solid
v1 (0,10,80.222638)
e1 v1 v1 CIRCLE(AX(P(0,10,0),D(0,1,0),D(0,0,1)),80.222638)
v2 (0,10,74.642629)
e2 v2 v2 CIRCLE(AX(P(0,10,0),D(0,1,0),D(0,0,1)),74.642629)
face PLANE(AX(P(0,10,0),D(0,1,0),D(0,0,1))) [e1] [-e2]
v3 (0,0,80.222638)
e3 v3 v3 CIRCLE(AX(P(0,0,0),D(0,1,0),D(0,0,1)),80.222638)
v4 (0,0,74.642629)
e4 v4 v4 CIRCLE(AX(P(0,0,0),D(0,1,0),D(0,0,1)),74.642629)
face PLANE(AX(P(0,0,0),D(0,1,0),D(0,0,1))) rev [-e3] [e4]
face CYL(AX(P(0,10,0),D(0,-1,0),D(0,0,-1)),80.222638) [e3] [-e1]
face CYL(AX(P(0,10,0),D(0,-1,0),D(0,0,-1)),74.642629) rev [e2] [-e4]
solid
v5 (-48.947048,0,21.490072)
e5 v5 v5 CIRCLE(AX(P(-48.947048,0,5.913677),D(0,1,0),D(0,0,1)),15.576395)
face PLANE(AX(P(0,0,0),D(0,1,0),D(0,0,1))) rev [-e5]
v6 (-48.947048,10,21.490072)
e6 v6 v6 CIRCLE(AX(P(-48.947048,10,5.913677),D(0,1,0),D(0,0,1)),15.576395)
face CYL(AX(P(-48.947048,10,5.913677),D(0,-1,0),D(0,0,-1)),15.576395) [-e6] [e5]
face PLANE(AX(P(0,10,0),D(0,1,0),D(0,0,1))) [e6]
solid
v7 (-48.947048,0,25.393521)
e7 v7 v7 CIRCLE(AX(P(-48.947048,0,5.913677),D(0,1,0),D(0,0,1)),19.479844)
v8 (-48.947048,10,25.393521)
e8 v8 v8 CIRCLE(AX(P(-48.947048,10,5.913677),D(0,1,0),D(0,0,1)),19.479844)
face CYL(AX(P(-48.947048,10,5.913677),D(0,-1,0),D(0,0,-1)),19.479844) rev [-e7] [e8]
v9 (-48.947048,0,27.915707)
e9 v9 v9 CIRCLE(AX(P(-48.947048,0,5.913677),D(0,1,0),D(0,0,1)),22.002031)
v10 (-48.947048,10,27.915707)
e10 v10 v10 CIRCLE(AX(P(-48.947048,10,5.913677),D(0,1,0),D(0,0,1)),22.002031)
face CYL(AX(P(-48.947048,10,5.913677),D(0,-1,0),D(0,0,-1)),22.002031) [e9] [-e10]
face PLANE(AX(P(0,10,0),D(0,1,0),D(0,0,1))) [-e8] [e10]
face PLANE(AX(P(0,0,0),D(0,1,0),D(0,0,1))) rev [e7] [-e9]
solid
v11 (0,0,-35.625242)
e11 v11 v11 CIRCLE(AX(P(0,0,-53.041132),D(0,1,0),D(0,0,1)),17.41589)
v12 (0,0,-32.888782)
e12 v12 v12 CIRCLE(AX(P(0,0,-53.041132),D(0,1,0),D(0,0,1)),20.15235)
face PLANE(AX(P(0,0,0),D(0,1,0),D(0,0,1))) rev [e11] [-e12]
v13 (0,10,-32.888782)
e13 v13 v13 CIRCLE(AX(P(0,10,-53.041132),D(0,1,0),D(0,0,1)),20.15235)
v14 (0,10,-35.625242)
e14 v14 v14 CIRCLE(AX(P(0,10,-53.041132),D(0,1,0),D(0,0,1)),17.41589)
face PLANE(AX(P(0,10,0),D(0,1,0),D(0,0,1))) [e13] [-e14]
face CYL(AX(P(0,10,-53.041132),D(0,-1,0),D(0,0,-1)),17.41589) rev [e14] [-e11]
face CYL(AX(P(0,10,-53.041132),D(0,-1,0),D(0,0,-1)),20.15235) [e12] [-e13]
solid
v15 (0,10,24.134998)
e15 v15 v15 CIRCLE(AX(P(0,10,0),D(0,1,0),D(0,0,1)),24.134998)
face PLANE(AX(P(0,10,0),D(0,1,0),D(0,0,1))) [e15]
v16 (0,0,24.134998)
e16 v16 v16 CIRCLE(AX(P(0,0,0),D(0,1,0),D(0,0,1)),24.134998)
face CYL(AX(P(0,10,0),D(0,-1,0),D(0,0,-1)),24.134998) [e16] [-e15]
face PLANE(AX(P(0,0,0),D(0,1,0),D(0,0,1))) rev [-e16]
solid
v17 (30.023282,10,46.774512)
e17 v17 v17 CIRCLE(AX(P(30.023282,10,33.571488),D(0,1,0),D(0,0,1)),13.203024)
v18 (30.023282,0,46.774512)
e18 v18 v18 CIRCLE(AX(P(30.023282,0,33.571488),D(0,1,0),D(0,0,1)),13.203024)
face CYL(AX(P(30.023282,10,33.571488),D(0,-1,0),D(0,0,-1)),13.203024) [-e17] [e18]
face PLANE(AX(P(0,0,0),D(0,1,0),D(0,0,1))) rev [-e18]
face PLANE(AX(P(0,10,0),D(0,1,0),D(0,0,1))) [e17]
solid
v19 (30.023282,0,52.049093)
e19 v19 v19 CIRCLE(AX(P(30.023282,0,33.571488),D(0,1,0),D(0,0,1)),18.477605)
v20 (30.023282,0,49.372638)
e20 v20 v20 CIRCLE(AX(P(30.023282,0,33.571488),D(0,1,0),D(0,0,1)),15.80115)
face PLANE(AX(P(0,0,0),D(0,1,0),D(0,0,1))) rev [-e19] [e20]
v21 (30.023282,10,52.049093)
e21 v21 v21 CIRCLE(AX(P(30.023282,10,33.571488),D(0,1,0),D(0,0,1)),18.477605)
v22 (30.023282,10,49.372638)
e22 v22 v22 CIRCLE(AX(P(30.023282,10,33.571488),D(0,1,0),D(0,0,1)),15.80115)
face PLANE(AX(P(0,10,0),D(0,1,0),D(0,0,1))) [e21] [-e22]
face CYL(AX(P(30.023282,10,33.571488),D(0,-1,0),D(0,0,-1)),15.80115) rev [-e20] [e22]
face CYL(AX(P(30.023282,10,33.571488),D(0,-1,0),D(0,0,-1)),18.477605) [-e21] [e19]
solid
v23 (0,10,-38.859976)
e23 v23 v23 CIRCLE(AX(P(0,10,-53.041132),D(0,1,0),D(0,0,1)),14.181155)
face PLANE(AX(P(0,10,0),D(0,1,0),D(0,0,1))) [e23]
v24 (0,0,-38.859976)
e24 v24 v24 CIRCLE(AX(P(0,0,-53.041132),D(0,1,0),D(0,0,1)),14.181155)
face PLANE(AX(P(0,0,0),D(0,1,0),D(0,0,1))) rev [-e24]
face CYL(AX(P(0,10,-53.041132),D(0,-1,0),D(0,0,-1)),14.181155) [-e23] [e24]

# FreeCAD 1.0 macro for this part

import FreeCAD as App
import Part
import Sketcher
from FreeCAD import Vector

doc = App.newDocument("Part")
params = doc.addObject("Spreadsheet::Sheet", "Params")
for row, (alias, value) in enumerate([
    ("pad1_length", "10 mm"),
    ("pad2_length", "10 mm"),
    ("pad3_length", "10 mm"),
    ("pad4_length", "10 mm"),
    ("pad5_length", "10 mm"),
    ("pad6_length", "10 mm"),
    ("pad7_length", "10 mm"),
    ("pad8_length", "10 mm"),
], start=1):
    params.set(f"A{row}", alias)
    params.set(f"B{row}", "=" + value)
    params.setAlias(f"B{row}", alias)

body = doc.addObject("PartDesign::Body", "Body")

# Sketch on XZ plane
sketch1 = body.newObject("Sketcher::SketchObject", "Sketch")
sketch1.AttachmentSupport = (doc.getObject("XZ_Plane"), [""])
sketch1.MapMode = "FlatFace"
sketch1.addGeometry(Part.Circle(Vector(0, 0, 0), Vector(0, 0, 1), 80), False)
sketch1.addGeometry(Part.Circle(Vector(0, 0, 0), Vector(0, 0, 1), 75), False)
sketch1.addConstraint(Sketcher.Constraint("Coincident", 0, 3, -1, 1))
sketch1.addConstraint(Sketcher.Constraint("Coincident", 1, 3, -1, 1))
sketch1.addConstraint(Sketcher.Constraint("Diameter", 0, 160.445277))
sketch1.addConstraint(Sketcher.Constraint("Diameter", 1, 149.285258))
pad1 = body.newObject("PartDesign::Pad", "Pad")
pad1.Profile = sketch1
pad1.setExpression("Length", "Params.pad1_length")
pad1.Reversed = True
body2 = doc.addObject("PartDesign::Body", "Body001")

# Sketch on XZ plane
sketch2 = body2.newObject("Sketcher::SketchObject", "Sketch001")
sketch2.AttachmentSupport = (doc.getObject("XZ_Plane001"), [""])
sketch2.MapMode = "FlatFace"
sketch2.addGeometry(Part.Circle(Vector(0, 0, 0), Vector(0, 0, 1), 24), False)
sketch2.addConstraint(Sketcher.Constraint("Coincident", 0, 3, -1, 1))
sketch2.addConstraint(Sketcher.Constraint("Diameter", 0, 48.269995))
pad2 = body2.newObject("PartDesign::Pad", "Pad001")
pad2.Profile = sketch2
pad2.setExpression("Length", "Params.pad2_length")
pad2.Reversed = True
body3 = doc.addObject("PartDesign::Body", "Body002")

# Sketch on XZ plane
sketch3 = body3.newObject("Sketcher::SketchObject", "Sketch002")
sketch3.AttachmentSupport = (doc.getObject("XZ_Plane002"), [""])
sketch3.MapMode = "FlatFace"
sketch3.addGeometry(Part.Circle(Vector(-49, 6, 0), Vector(0, 0, 1), 16), False)
sketch3.addConstraint(Sketcher.Constraint("Diameter", 0, 31.15279))
sketch3.addConstraint(Sketcher.Constraint("DistanceX", 0, 3, -1, 1, 48.947048))
sketch3.addConstraint(Sketcher.Constraint("DistanceY", -1, 1, 0, 3, 5.913677))
pad3 = body3.newObject("PartDesign::Pad", "Pad002")
pad3.Profile = sketch3
pad3.setExpression("Length", "Params.pad3_length")
pad3.Reversed = True
body4 = doc.addObject("PartDesign::Body", "Body003")

# Sketch on XZ plane
sketch4 = body4.newObject("Sketcher::SketchObject", "Sketch003")
sketch4.AttachmentSupport = (doc.getObject("XZ_Plane003"), [""])
sketch4.MapMode = "FlatFace"
sketch4.addGeometry(Part.Circle(Vector(-49, 6, 0), Vector(0, 0, 1), 22), False)
sketch4.addGeometry(Part.Circle(Vector(-49, 6, 0), Vector(0, 0, 1), 19), False)
sketch4.addConstraint(Sketcher.Constraint("Coincident", 1, 3, 0, 3))
sketch4.addConstraint(Sketcher.Constraint("Diameter", 0, 44.004061))
sketch4.addConstraint(Sketcher.Constraint("Diameter", 1, 38.959689))
sketch4.addConstraint(Sketcher.Constraint("DistanceX", 0, 3, -1, 1, 48.947048))
sketch4.addConstraint(Sketcher.Constraint("DistanceY", -1, 1, 0, 3, 5.913677))
pad4 = body4.newObject("PartDesign::Pad", "Pad003")
pad4.Profile = sketch4
pad4.setExpression("Length", "Params.pad4_length")
pad4.Reversed = True
body5 = doc.addObject("PartDesign::Body", "Body004")

# Sketch on XZ plane
sketch5 = body5.newObject("Sketcher::SketchObject", "Sketch004")
sketch5.AttachmentSupport = (doc.getObject("XZ_Plane004"), [""])
sketch5.MapMode = "FlatFace"
sketch5.addGeometry(Part.Circle(Vector(0, -53, 0), Vector(0, 0, 1), 14), False)
sketch5.addConstraint(Sketcher.Constraint("PointOnObject", 0, 3, -2))
sketch5.addConstraint(Sketcher.Constraint("Diameter", 0, 28.362311))
sketch5.addConstraint(Sketcher.Constraint("DistanceY", 0, 3, -1, 1, 53.041132))
pad5 = body5.newObject("PartDesign::Pad", "Pad004")
pad5.Profile = sketch5
pad5.setExpression("Length", "Params.pad5_length")
pad5.Reversed = True
body6 = doc.addObject("PartDesign::Body", "Body005")

# Sketch on XZ plane
sketch6 = body6.newObject("Sketcher::SketchObject", "Sketch005")
sketch6.AttachmentSupport = (doc.getObject("XZ_Plane005"), [""])
sketch6.MapMode = "FlatFace"
sketch6.addGeometry(Part.Circle(Vector(0, -53, 0), Vector(0, 0, 1), 20), False)
sketch6.addGeometry(Part.Circle(Vector(0, -53, 0), Vector(0, 0, 1), 17), False)
sketch6.addConstraint(Sketcher.Constraint("Coincident", 1, 3, 0, 3))
sketch6.addConstraint(Sketcher.Constraint("PointOnObject", 0, 3, -2))
sketch6.addConstraint(Sketcher.Constraint("Diameter", 0, 40.304701))
sketch6.addConstraint(Sketcher.Constraint("Diameter", 1, 34.831779))
sketch6.addConstraint(Sketcher.Constraint("DistanceY", 0, 3, -1, 1, 53.041132))
pad6 = body6.newObject("PartDesign::Pad", "Pad005")
pad6.Profile = sketch6
pad6.setExpression("Length", "Params.pad6_length")
pad6.Reversed = True
body7 = doc.addObject("PartDesign::Body", "Body006")

# Sketch on XZ plane
sketch7 = body7.newObject("Sketcher::SketchObject", "Sketch006")
sketch7.AttachmentSupport = (doc.getObject("XZ_Plane006"), [""])
sketch7.MapMode = "FlatFace"
sketch7.addGeometry(Part.Circle(Vector(30, 34, 0), Vector(0, 0, 1), 13), False)
sketch7.addConstraint(Sketcher.Constraint("Diameter", 0, 26.406048))
sketch7.addConstraint(Sketcher.Constraint("DistanceY", -1, 1, 0, 3, 33.571488))
sketch7.addConstraint(Sketcher.Constraint("DistanceX", -1, 1, 0, 3, 30.023282))
pad7 = body7.newObject("PartDesign::Pad", "Pad006")
pad7.Profile = sketch7
pad7.setExpression("Length", "Params.pad7_length")
pad7.Reversed = True
body8 = doc.addObject("PartDesign::Body", "Body007")

# Sketch on XZ plane
sketch8 = body8.newObject("Sketcher::SketchObject", "Sketch007")
sketch8.AttachmentSupport = (doc.getObject("XZ_Plane007"), [""])
sketch8.MapMode = "FlatFace"
sketch8.addGeometry(Part.Circle(Vector(30, 34, 0), Vector(0, 0, 1), 18), False)
sketch8.addGeometry(Part.Circle(Vector(30, 34, 0), Vector(0, 0, 1), 16), False)
sketch8.addConstraint(Sketcher.Constraint("Coincident", 1, 3, 0, 3))
sketch8.addConstraint(Sketcher.Constraint("Diameter", 1, 31.6023))
sketch8.addConstraint(Sketcher.Constraint("Diameter", 0, 36.95521))
sketch8.addConstraint(Sketcher.Constraint("DistanceY", -1, 1, 0, 3, 33.571488))
sketch8.addConstraint(Sketcher.Constraint("DistanceX", -1, 1, 0, 3, 30.023282))
pad8 = body8.newObject("PartDesign::Pad", "Pad007")
pad8.Profile = sketch8
pad8.setExpression("Length", "Params.pad8_length")
pad8.Reversed = True

doc.recompute()
